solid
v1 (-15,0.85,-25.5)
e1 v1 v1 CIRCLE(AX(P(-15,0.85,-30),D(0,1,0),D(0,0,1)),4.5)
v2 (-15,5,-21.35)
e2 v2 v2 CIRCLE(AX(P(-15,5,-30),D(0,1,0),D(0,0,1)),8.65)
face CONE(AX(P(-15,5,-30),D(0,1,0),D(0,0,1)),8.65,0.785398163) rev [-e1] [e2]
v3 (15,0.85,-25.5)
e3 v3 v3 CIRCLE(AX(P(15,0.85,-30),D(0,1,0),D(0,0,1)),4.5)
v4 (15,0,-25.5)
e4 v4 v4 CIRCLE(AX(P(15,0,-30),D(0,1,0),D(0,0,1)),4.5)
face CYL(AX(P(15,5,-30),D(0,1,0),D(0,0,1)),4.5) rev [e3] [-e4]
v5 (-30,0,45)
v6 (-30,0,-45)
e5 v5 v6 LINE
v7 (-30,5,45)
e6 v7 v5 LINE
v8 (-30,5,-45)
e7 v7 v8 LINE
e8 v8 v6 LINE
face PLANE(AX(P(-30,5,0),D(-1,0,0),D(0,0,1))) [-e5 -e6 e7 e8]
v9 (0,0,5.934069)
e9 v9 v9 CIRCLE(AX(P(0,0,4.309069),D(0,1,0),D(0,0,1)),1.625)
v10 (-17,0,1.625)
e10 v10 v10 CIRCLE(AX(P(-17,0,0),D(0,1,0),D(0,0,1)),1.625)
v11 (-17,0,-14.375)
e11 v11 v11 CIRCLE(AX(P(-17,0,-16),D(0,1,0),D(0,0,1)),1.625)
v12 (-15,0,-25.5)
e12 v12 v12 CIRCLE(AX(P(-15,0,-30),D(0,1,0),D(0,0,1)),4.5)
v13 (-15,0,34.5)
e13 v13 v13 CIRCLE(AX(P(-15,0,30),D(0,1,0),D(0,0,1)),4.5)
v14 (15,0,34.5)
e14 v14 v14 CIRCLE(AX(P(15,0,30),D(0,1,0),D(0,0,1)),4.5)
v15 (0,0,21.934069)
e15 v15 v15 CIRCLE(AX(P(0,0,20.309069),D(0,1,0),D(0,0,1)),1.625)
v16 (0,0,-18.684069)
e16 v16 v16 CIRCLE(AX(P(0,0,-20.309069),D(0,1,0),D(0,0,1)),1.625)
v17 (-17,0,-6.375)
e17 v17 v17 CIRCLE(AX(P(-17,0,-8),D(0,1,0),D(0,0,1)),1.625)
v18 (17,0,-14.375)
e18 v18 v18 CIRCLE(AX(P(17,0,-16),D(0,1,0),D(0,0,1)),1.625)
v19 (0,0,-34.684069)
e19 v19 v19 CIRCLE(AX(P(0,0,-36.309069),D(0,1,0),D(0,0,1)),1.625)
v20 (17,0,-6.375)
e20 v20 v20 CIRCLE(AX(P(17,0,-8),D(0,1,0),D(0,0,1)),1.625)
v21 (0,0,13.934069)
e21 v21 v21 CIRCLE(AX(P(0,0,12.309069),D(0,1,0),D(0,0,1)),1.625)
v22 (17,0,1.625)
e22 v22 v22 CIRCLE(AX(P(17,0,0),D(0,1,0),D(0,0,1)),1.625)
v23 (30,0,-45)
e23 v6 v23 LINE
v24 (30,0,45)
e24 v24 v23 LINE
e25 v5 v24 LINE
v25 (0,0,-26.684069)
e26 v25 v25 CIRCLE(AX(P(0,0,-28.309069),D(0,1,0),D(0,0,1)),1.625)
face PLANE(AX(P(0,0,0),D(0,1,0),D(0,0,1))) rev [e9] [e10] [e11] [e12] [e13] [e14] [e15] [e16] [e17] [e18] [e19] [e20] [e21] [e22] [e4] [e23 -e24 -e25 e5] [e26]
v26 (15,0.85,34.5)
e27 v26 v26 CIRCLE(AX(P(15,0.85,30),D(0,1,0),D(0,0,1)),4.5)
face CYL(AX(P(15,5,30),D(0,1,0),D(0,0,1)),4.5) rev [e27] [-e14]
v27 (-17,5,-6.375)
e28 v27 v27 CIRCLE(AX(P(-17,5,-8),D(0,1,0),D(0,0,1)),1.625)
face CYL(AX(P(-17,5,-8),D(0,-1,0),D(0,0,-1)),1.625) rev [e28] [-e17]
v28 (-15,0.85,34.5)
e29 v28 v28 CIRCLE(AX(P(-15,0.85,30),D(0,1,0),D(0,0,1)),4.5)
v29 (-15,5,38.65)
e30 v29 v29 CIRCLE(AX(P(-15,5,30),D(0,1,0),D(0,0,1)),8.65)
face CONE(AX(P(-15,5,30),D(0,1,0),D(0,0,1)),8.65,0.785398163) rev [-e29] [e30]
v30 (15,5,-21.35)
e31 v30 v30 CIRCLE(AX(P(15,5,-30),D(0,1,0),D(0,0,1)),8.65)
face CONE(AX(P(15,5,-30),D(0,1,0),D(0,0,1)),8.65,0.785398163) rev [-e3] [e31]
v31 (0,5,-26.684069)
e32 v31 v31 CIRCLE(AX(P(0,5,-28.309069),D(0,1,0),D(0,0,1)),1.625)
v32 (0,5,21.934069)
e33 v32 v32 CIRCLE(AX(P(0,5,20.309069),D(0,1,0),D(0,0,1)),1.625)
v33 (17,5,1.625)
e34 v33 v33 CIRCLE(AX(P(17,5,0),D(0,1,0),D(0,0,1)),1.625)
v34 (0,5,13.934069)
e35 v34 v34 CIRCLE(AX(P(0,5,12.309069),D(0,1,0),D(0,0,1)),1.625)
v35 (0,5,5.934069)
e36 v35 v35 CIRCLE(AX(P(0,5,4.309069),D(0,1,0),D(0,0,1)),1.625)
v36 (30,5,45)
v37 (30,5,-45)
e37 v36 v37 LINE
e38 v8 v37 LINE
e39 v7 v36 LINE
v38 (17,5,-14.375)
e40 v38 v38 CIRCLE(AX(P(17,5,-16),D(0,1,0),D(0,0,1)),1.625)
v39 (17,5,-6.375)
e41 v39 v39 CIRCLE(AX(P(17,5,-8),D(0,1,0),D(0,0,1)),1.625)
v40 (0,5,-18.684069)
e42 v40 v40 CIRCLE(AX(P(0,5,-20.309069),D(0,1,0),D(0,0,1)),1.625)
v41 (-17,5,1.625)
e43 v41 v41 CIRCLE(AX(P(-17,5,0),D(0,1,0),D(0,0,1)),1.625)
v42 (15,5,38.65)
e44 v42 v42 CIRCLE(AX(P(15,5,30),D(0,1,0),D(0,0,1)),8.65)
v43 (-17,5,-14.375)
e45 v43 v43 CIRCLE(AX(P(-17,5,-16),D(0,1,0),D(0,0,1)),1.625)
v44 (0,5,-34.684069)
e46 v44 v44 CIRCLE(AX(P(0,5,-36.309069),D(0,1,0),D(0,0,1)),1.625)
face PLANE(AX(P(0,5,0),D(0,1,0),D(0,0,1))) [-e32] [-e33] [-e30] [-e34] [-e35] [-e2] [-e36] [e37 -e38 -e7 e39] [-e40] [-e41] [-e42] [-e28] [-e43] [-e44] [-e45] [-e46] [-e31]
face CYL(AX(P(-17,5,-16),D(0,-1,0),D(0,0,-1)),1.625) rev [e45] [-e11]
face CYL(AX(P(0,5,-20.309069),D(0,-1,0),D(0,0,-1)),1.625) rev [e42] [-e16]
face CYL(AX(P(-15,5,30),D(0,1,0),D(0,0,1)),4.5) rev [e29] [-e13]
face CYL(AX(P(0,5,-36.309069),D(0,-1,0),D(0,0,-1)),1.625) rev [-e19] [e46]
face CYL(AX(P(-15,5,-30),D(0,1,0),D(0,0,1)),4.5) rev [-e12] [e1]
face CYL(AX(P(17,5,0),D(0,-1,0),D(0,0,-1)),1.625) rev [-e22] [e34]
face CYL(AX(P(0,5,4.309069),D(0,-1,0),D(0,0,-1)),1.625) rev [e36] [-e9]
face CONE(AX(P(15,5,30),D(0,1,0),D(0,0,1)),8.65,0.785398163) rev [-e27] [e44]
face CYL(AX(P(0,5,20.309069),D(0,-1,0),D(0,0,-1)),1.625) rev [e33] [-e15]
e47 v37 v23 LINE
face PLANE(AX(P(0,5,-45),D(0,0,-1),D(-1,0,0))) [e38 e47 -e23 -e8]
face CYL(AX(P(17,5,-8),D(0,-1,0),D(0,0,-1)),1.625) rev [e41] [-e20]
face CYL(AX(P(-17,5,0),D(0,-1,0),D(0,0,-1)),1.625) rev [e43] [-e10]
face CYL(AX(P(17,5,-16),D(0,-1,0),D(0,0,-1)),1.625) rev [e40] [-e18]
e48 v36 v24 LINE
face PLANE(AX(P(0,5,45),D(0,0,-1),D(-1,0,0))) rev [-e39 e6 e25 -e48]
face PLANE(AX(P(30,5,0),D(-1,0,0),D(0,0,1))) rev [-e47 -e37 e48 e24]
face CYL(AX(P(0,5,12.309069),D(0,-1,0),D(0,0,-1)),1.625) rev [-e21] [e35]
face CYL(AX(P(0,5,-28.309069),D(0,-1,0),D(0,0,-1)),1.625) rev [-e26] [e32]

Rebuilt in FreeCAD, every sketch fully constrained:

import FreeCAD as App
import Part
import Sketcher
Q = App.Units.Quantity

doc = App.newDocument("Part")
params = doc.addObject("Spreadsheet::Sheet", "Params")
for row, (alias, value) in enumerate([
    ("sketch1_diameter", "3.25 mm"),
    ("sketch1_width", "60 mm"),
    ("sketch1_height", "90 mm"),
    ("pad1_length", "5 mm"),
    ("sketch2_diameter", "6.75 mm"),
    ("pocket1_length", "5 mm"),
    ("sketch3_width", "5 mm"),
    ("sketch3_height", "4.5 mm"),
    ("sketch3_width2", "0.85 mm"),
    ("groove_angle", "360 deg"),
    ("linearpattern_pitch", "30 mm"),
    ("linearpattern2_pitch", "60 mm"),
    ("linearpattern3_pitch", "67.082039 mm"),
], start=1):
    params.set(f"A{row}", alias)
    params.set(f"B{row}", "=" + value)
    params.setAlias(f"B{row}", alias)

body = doc.addObject("PartDesign::Body", "Body")

# Sketch on XZ plane
sketch1 = body.newObject("Sketcher::SketchObject", "Sketch")
sketch1.AttachmentSupport = (doc.getObject("XZ_Plane"), [""])
sketch1.MapMode = "FlatFace"
sketch1.addGeometry([
    Part.LineSegment(App.Vector(-30, -45, 0), App.Vector(-30, 45, 0)),  # 0
    Part.LineSegment(App.Vector(-30, 45, 0), App.Vector(30, 45, 0)),  # 1
    Part.LineSegment(App.Vector(30, 45, 0), App.Vector(30, -45, 0)),  # 2
    Part.LineSegment(App.Vector(30, -45, 0), App.Vector(-30, -45, 0)),  # 3
    Part.Circle(App.Vector(-17, 0, 0), App.Vector(0, 0, 1), 1.6),  # 4
    Part.Circle(App.Vector(0, 20.3, 0), App.Vector(0, 0, 1), 1.6),  # 5
    Part.Circle(App.Vector(0, 12.3, 0), App.Vector(0, 0, 1), 1.6),  # 6
    Part.Circle(App.Vector(0, 4.3, 0), App.Vector(0, 0, 1), 1.6),  # 7
    Part.Circle(App.Vector(17, 0, 0), App.Vector(0, 0, 1), 1.6),  # 8
    Part.Circle(App.Vector(-17, -8, 0), App.Vector(0, 0, 1), 1.6),  # 9
    Part.Circle(App.Vector(-17, -16, 0), App.Vector(0, 0, 1), 1.6),  # 10
    Part.Circle(App.Vector(0, -20.3, 0), App.Vector(0, 0, 1), 1.6),  # 11
    Part.Circle(App.Vector(17, -8, 0), App.Vector(0, 0, 1), 1.6),  # 12
    Part.Circle(App.Vector(17, -16, 0), App.Vector(0, 0, 1), 1.6),  # 13
    Part.Circle(App.Vector(0, -28.3, 0), App.Vector(0, 0, 1), 1.6),  # 14
    Part.Circle(App.Vector(0, -36.3, 0), App.Vector(0, 0, 1), 1.6),  # 15
], False)
sketch1.addConstraint([
    Sketcher.Constraint("Coincident", 0, 2, 1, 1),
    Sketcher.Constraint("Coincident", 1, 2, 2, 1),
    Sketcher.Constraint("Coincident", 2, 2, 3, 1),
    Sketcher.Constraint("Coincident", 3, 2, 0, 1),
    Sketcher.Constraint("Vertical", 0),
    Sketcher.Constraint("Horizontal", 1),
    Sketcher.Constraint("Vertical", 2),
    Sketcher.Constraint("Horizontal", 3),
    Sketcher.Constraint("Equal", 4, 5),
    Sketcher.Constraint("Equal", 5, 6),
    Sketcher.Constraint("Equal", 6, 7),
    Sketcher.Constraint("Equal", 7, 8),
    Sketcher.Constraint("Equal", 8, 9),
    Sketcher.Constraint("Equal", 9, 10),
    Sketcher.Constraint("Equal", 10, 11),
    Sketcher.Constraint("Equal", 11, 12),
    Sketcher.Constraint("Equal", 12, 13),
    Sketcher.Constraint("Equal", 13, 14),
    Sketcher.Constraint("Equal", 14, 15),
    Sketcher.Constraint("Symmetric", 4, 3, 8, 3, -1, 1),
    Sketcher.Constraint("Symmetric", 5, 3, 11, 3, -1, 1),
    Sketcher.Constraint("Symmetric", 0, 2, 2, 2, -1, 1),
    Sketcher.Constraint("Symmetric", 9, 3, 12, 3, -2),
    Sketcher.Constraint("Symmetric", 10, 3, 13, 3, -2),
    Sketcher.Constraint("PointOnObject", 4, 3, -1),
    Sketcher.Constraint("PointOnObject", 5, 3, -2),
    Sketcher.Constraint("PointOnObject", 6, 3, -2),
    Sketcher.Constraint("PointOnObject", 7, 3, -2),
    Sketcher.Constraint("PointOnObject", 14, 3, -2),
    Sketcher.Constraint("PointOnObject", 15, 3, -2),
    Sketcher.Constraint("Vertical", 4, 3, 9, 3),
    Sketcher.Constraint("Vertical", 9, 3, 10, 3),
    Sketcher.Constraint("Diameter", 4, 3.25),
    Sketcher.Constraint("DistanceX", 1, 1, 1, 2, 60.0),
    Sketcher.Constraint("DistanceY", 0, 1, 0, 2, 90.0),
    Sketcher.Constraint("DistanceX", 4, 3, -1, 1, 17.0),
    Sketcher.Constraint("DistanceY", 9, 3, -1, 1, 8.0),
    Sketcher.Constraint("DistanceY", 10, 3, -1, 1, 16.0),
    Sketcher.Constraint("DistanceY", 6, 3, 5, 3, 8.0),
    Sketcher.Constraint("DistanceY", 7, 3, 6, 3, 8.0),
    Sketcher.Constraint("DistanceY", 14, 3, 11, 3, 8.0),
    Sketcher.Constraint("DistanceY", 15, 3, 14, 3, 8.0),
    Sketcher.Constraint("DistanceY", -1, 1, 5, 3, 20.309069),
])
sketch1.setExpression("Constraints[32]", "Params.sketch1_diameter")
sketch1.setExpression("Constraints[33]", "Params.sketch1_width")
sketch1.setExpression("Constraints[34]", "Params.sketch1_height")
pad1 = body.newObject("PartDesign::Pad", "Pad")
pad1.Profile = sketch1
pad1.setExpression("Length", "Params.pad1_length")
pad1.Reversed = True

# Sketch on XZ plane
sketch2 = body.newObject("Sketcher::SketchObject", "Sketch001")
sketch2.AttachmentSupport = (doc.getObject("XZ_Plane"), [""])
sketch2.MapMode = "FlatFace"
sketch2.AttachmentOffset = App.Placement(App.Vector(0, 0, -5), App.Rotation())
sketch2.addGeometry([
    Part.Circle(App.Vector(-15, -30, 0), App.Vector(0, 0, 1), 3.4),
    Part.Circle(App.Vector(15, -30, 0), App.Vector(0, 0, 1), 3.4),
    Part.Circle(App.Vector(15, 30, 0), App.Vector(0, 0, 1), 3.4),
    Part.Circle(App.Vector(-15, 30, 0), App.Vector(0, 0, 1), 3.4),
], False)
sketch2.addConstraint([
    Sketcher.Constraint("Equal", 0, 1),
    Sketcher.Constraint("Equal", 1, 2),
    Sketcher.Constraint("Equal", 2, 3),
    Sketcher.Constraint("Symmetric", 0, 3, 2, 3, -1, 1),
    Sketcher.Constraint("Symmetric", 1, 3, 3, 3, -1, 1),
    Sketcher.Constraint("Symmetric", 0, 3, 1, 3, -2),
    Sketcher.Constraint("Diameter", 0, 6.75),
    Sketcher.Constraint("DistanceX", 0, 3, -1, 1, 15.0),
    Sketcher.Constraint("DistanceY", 0, 3, -1, 1, 30.0),
])
sketch2.setExpression("Constraints[6]", "Params.sketch2_diameter")
pocket1 = body.newObject("PartDesign::Pocket", "Pocket")
pocket1.Profile = sketch2
pocket1.setExpression("Length", "Params.pocket1_length")
pocket1.Reversed = True

# Sketch on YZ plane
sketch3 = body.newObject("Sketcher::SketchObject", "Sketch002")
sketch3.AttachmentSupport = (doc.getObject("YZ_Plane"), [""])
sketch3.MapMode = "FlatFace"
sketch3.AttachmentOffset = App.Placement(App.Vector(0, 0, -15), App.Rotation())
sketch3.addGeometry([
    Part.LineSegment(App.Vector(0, 30, 0), App.Vector(5, 30, 0)),  # 0
    Part.LineSegment(App.Vector(5, 30, 0), App.Vector(5, 38.6, 0)),  # 1
    Part.LineSegment(App.Vector(5, 38.6, 0), App.Vector(0.8, 34.5, 0)),  # 2
    Part.LineSegment(App.Vector(0.8, 34.5, 0), App.Vector(0, 34.5, 0)),  # 3
    Part.LineSegment(App.Vector(0, 34.5, 0), App.Vector(0, 30, 0)),  # 4
], False)
sketch3.addGeometry(Part.LineSegment(App.Vector(5, 30, 0), App.Vector(0, 30, 0)), True)  # axis
sketch3.addConstraint([
    Sketcher.Constraint("Coincident", 0, 2, 1, 1),
    Sketcher.Constraint("Coincident", 1, 2, 2, 1),
    Sketcher.Constraint("Coincident", 2, 2, 3, 1),
    Sketcher.Constraint("Coincident", 3, 2, 4, 1),
    Sketcher.Constraint("Coincident", 4, 2, 0, 1),
    Sketcher.Constraint("Horizontal", 0),
    Sketcher.Constraint("Vertical", 1),
    Sketcher.Constraint("Horizontal", 3),
    Sketcher.Constraint("Vertical", 4),
    Sketcher.Constraint("Horizontal", 5),
    Sketcher.Constraint("Coincident", 5, 1, 0, 2),
    Sketcher.Constraint("PointOnObject", 3, 2, -2),
    Sketcher.Constraint("PointOnObject", 5, 2, -2),
    Sketcher.Constraint("DistanceX", 0, 1, 0, 2, 5.0),
    Sketcher.Constraint("Angle", 2, Q("-135 deg")),
    Sketcher.Constraint("DistanceY", 4, 2, 4, 1, 4.5),
    Sketcher.Constraint("DistanceY", -1, 1, 0, 2, 30.0),
    Sketcher.Constraint("DistanceX", 3, 2, 3, 1, 0.85),
])
sketch3.setExpression("Constraints[13]", "Params.sketch3_width")
sketch3.setExpression("Constraints[15]", "Params.sketch3_height")
sketch3.setExpression("Constraints[17]", "Params.sketch3_width2")
groove = body.newObject("PartDesign::Groove", "Groove")
groove.Profile = sketch3
groove.ReferenceAxis = (sketch3, ["Axis0"])
groove.setExpression("Angle", "Params.groove_angle")
doc.recompute()

linearpattern = body.newObject("PartDesign::LinearPattern", "LinearPattern")
linearpattern.Originals = [groove]
linearpattern.Direction = (doc.getObject("X_Axis"), [""])
linearpattern.Mode = "offset"
linearpattern.setExpression("Offset", "Params.linearpattern_pitch")
linearpattern.Occurrences = 2
body.Tip = linearpattern
doc.recompute()

linearpattern2 = body.newObject("PartDesign::LinearPattern", "LinearPattern001")
linearpattern2.Originals = [groove]
linearpattern2.Direction = (doc.getObject("Z_Axis"), [""])
linearpattern2.Mode = "offset"
linearpattern2.setExpression("Offset", "Params.linearpattern2_pitch")
linearpattern2.Occurrences = 2
linearpattern2.Reversed = True
body.Tip = linearpattern2
doc.recompute()

datumline = body.newObject("PartDesign::Line", "DatumLine")
datumline.Placement = App.Placement(App.Vector(0, 0, 0), App.Rotation(App.Vector(0, 0, 1), App.Vector(0.447213595, 0, -0.894427191)))
linearpattern3 = body.newObject("PartDesign::LinearPattern", "LinearPattern002")
linearpattern3.Originals = [groove]
linearpattern3.Direction = (datumline, [""])
linearpattern3.Mode = "offset"
linearpattern3.setExpression("Offset", "Params.linearpattern3_pitch")
linearpattern3.Occurrences = 2
body.Tip = linearpattern3

doc.recompute()
